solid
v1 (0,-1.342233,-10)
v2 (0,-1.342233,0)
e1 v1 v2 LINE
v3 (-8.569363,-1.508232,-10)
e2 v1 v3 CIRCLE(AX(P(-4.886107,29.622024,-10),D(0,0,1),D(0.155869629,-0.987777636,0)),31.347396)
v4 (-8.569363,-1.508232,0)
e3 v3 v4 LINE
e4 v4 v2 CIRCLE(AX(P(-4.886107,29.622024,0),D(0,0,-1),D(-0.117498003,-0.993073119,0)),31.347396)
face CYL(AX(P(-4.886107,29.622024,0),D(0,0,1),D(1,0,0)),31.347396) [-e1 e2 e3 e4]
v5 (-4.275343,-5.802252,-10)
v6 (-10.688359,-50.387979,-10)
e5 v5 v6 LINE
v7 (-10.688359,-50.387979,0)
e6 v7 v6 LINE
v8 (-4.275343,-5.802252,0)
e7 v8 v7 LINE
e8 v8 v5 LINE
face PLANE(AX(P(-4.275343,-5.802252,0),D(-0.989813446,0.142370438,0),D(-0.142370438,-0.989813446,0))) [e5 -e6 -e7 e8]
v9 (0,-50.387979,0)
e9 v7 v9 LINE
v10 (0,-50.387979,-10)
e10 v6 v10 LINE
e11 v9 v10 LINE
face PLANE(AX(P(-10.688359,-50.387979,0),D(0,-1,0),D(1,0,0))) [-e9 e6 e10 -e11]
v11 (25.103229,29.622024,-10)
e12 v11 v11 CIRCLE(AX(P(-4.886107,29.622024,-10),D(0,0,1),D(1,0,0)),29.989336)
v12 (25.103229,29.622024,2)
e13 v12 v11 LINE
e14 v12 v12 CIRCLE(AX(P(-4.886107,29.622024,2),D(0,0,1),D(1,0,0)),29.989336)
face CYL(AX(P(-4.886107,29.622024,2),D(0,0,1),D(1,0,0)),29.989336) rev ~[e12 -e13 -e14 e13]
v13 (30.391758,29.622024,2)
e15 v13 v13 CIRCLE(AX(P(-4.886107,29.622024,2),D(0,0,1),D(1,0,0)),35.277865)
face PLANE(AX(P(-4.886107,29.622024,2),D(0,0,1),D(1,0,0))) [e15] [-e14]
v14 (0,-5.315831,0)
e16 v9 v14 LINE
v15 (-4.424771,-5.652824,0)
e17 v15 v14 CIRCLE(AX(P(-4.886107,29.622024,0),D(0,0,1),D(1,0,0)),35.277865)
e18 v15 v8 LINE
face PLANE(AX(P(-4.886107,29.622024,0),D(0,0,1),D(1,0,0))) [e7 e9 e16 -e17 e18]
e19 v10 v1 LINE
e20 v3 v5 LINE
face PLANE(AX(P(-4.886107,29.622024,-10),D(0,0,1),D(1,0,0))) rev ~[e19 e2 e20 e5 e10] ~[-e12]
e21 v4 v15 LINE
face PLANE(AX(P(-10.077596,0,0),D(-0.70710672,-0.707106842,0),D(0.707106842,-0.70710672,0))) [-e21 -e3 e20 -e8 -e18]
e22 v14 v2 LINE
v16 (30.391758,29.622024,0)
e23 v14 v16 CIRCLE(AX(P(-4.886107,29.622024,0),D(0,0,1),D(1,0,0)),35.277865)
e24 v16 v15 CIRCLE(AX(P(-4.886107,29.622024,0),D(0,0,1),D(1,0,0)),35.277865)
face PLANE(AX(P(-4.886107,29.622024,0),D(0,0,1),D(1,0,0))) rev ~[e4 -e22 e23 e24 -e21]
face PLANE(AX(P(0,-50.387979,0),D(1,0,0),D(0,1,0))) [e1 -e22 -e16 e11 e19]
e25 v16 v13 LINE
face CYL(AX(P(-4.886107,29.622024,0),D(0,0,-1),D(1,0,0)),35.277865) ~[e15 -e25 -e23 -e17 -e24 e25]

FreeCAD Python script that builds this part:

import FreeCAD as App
import Part
import Sketcher

V = App.Vector
Q = App.Units.Quantity


def add_polygon(sketch, points):
    """Adds a closed chain of lines whose ends are joined by coincident constraints."""
    first, n = sketch.GeometryCount, len(points)
    for a, b in zip(points, points[1:] + points[:1]):
        sketch.addGeometry(Part.LineSegment(App.Vector(*a, 0), App.Vector(*b, 0)), False)
    for i in range(n):
        sketch.addConstraint(Sketcher.Constraint("Coincident", first + i, 2, first + (i + 1) % n, 1))

doc = App.newDocument("Part")
params = doc.addObject("Spreadsheet::Sheet", "Params")
for row, (alias, value) in enumerate([
    ("pad1_length", "10 mm"),
    ("pad2_length", "10 mm"),
    ("pad3_length", "2 mm"),
    ("pocket1_length", "25 mm"),
], start=1):
    params.set(f"A{row}", alias)
    params.set(f"B{row}", "=" + value)
    params.setAlias(f"B{row}", alias)

body = doc.addObject("PartDesign::Body", "Body")

sketch1 = body.newObject("Sketcher::SketchObject", "Sketch")
sketch1.AttachmentSupport = (doc.getObject("XY_Plane"), [""])
sketch1.MapMode = "FlatFace"
add_polygon(sketch1, [(0, 0), (-10.077596, 0), (-4.275343, -5.802252), (-10.688359, -50.387979), (0, -50.387979)])
sketch1.addConstraint([
    Sketcher.Constraint("Horizontal", 0),
    Sketcher.Constraint("Horizontal", 3),
    Sketcher.Constraint("Vertical", 4),
    Sketcher.Constraint("Coincident", 4, 2, -1, 1),
    Sketcher.Constraint("Angle", 1, Q("-44.999995 deg")),
    Sketcher.Constraint("DistanceX", 3, 1, 3, 2, Q("10.688359 mm")),
    Sketcher.Constraint("DistanceY", 4, 1, 4, 2, Q("50.387979 mm")),
    Sketcher.Constraint("DistanceX", 0, 2, 0, 1, Q("10.077596 mm")),
    Sketcher.Constraint("Distance", 1, Q("8.205624 mm")),
])
pad1 = body.newObject("PartDesign::Pad", "Pad")
pad1.Profile = sketch1
pad1.setExpression("Length", "Params.pad1_length")
pad1.Reversed = True

sketch2 = body.newObject("Sketcher::SketchObject", "Sketch001")
sketch2.AttachmentSupport = (doc.getObject("XY_Plane"), [""])
sketch2.MapMode = "FlatFace"
sketch2.addGeometry(Part.Circle(V(-4.886107, 29.622024, 0), V(0, 0, 1), 31.347396), False)
sketch2.addConstraint([
    Sketcher.Constraint("Diameter", 0, Q("62.694792 mm")),
    Sketcher.Constraint("DistanceX", 0, 3, -1, 1, Q("4.886107 mm")),
    Sketcher.Constraint("DistanceY", -1, 1, 0, 3, Q("29.622024 mm")),
])
pad2 = body.newObject("PartDesign::Pad", "Pad001")
pad2.Profile = sketch2
pad2.setExpression("Length", "Params.pad2_length")
pad2.Reversed = True

sketch3 = body.newObject("Sketcher::SketchObject", "Sketch002")
sketch3.AttachmentSupport = (doc.getObject("XY_Plane"), [""])
sketch3.MapMode = "FlatFace"
sketch3.addGeometry(Part.Circle(V(-4.886107, 29.622024, 0), V(0, 0, 1), 35.277865), False)
sketch3.addConstraint([
    Sketcher.Constraint("Diameter", 0, Q("70.55573 mm")),
    Sketcher.Constraint("DistanceX", 0, 3, -1, 1, Q("4.886107 mm")),
    Sketcher.Constraint("DistanceY", -1, 1, 0, 3, Q("29.622024 mm")),
])
pad3 = body.newObject("PartDesign::Pad", "Pad002")
pad3.Profile = sketch3
pad3.setExpression("Length", "Params.pad3_length")

sketch4 = body.newObject("Sketcher::SketchObject", "Sketch003")
sketch4.AttachmentSupport = (doc.getObject("XY_Plane"), [""])
sketch4.MapMode = "FlatFace"
sketch4.AttachmentOffset = App.Placement(V(0, 0, 2), App.Rotation())
sketch4.addGeometry(Part.Circle(V(-4.886107, 29.622024, 0), V(0, 0, 1), 29.989336), False)
sketch4.addConstraint([
    Sketcher.Constraint("Diameter", 0, Q("59.978672 mm")),
    Sketcher.Constraint("DistanceX", 0, 3, -1, 1, Q("4.886107 mm")),
    Sketcher.Constraint("DistanceY", -1, 1, 0, 3, Q("29.622024 mm")),
])
pocket1 = body.newObject("PartDesign::Pocket", "Pocket")
pocket1.Profile = sketch4
pocket1.setExpression("Length", "Params.pocket1_length")

doc.recompute()
